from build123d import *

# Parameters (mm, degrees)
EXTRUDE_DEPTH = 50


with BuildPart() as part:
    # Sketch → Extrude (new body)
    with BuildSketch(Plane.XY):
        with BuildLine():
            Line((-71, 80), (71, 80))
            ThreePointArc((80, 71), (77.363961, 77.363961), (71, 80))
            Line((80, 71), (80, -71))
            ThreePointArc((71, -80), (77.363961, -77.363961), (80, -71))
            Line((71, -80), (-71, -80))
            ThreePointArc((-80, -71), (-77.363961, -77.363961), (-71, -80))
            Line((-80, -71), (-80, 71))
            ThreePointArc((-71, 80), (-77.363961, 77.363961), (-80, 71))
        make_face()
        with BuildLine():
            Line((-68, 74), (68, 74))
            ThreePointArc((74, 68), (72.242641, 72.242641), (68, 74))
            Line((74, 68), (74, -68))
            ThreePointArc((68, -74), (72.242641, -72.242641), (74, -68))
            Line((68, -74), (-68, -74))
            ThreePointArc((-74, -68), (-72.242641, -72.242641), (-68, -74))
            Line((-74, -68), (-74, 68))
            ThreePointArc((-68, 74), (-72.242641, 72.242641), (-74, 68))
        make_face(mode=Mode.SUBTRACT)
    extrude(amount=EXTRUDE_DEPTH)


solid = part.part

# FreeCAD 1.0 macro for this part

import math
import FreeCAD as App
import Part
import Sketcher
from FreeCAD import Vector
Q = App.Units.Quantity

doc = App.newDocument("Part")
params = doc.addObject("Spreadsheet::Sheet", "Params")
for row, (alias, value) in enumerate([
    ("sketch1_radius", "9 mm"),
    ("sketch1_radius2", "5.999999 mm"),
    ("sketch1_width", "142 mm"),
    ("sketch1_width2", "136 mm"),
    ("pad1_length", "50 mm"),
], start=1):
    params.set(f"A{row}", alias)
    params.set(f"B{row}", "=" + value)
    params.setAlias(f"B{row}", alias)

body = doc.addObject("PartDesign::Body", "Body")

sketch1 = body.newObject("Sketcher::SketchObject", "Sketch")
sketch1.AttachmentSupport = (doc.getObject("XY_Plane"), [""])
sketch1.MapMode = "FlatFace"
sketch1.addGeometry([
    Part.LineSegment(Vector(71, 80, 0), Vector(-71, 80, 0)),
    Part.ArcOfCircle(Part.Circle(Vector(-71, 71, 0), Vector(0, 0, 1), 9), math.radians(90), math.radians(180)),
    Part.LineSegment(Vector(-80, 71, 0), Vector(-80, -71, 0)),
    Part.ArcOfCircle(Part.Circle(Vector(-71, -71, 0), Vector(0, 0, 1), 9), math.radians(-180), math.radians(-90)),
    Part.LineSegment(Vector(-71, -80, 0), Vector(71, -80, 0)),
    Part.ArcOfCircle(Part.Circle(Vector(71, -71, 0), Vector(0, 0, 1), 9), math.radians(-90), math.radians(0)),
    Part.LineSegment(Vector(80, -71, 0), Vector(80, 71, 0)),
    Part.ArcOfCircle(Part.Circle(Vector(71, 71, 0), Vector(0, 0, 1), 9), math.radians(0), math.radians(90)),
    Part.LineSegment(Vector(-68, 74, 0), Vector(68, 74, 0)),
    Part.ArcOfCircle(Part.Circle(Vector(68, 68, 0), Vector(0, 0, 1), 6), math.radians(0), math.radians(90)),
    Part.LineSegment(Vector(74, 68, 0), Vector(74, -68, 0)),
    Part.ArcOfCircle(Part.Circle(Vector(68, -68, 0), Vector(0, 0, 1), 6), math.radians(-90), math.radians(0)),
    Part.LineSegment(Vector(68, -74, 0), Vector(-68, -74, 0)),
    Part.ArcOfCircle(Part.Circle(Vector(-68, -68, 0), Vector(0, 0, 1), 6), math.radians(180), math.radians(270)),
    Part.LineSegment(Vector(-74, -68, 0), Vector(-74, 68, 0)),
    Part.ArcOfCircle(Part.Circle(Vector(-68, 68, 0), Vector(0, 0, 1), 6), math.radians(90), math.radians(180)),
], False)
sketch1.addConstraint([
    Sketcher.Constraint("Tangent", 0, 2, 1, 1),
    Sketcher.Constraint("Tangent", 1, 2, 2, 1),
    Sketcher.Constraint("Tangent", 2, 2, 3, 1),
    Sketcher.Constraint("Tangent", 3, 2, 4, 1),
    Sketcher.Constraint("Tangent", 4, 2, 5, 1),
    Sketcher.Constraint("Tangent", 5, 2, 6, 1),
    Sketcher.Constraint("Tangent", 6, 2, 7, 1),
    Sketcher.Constraint("Tangent", 7, 2, 0, 1),
    Sketcher.Constraint("Tangent", 8, 2, 9, 2),
    Sketcher.Constraint("Tangent", 9, 1, 10, 1),
    Sketcher.Constraint("Tangent", 10, 2, 11, 2),
    Sketcher.Constraint("Tangent", 11, 1, 12, 1),
    Sketcher.Constraint("Tangent", 12, 2, 13, 2),
    Sketcher.Constraint("Tangent", 13, 1, 14, 1),
    Sketcher.Constraint("Tangent", 14, 2, 15, 2),
    Sketcher.Constraint("Tangent", 15, 1, 8, 1),
    Sketcher.Constraint("Horizontal", 0),
    Sketcher.Constraint("Vertical", 2),
    Sketcher.Constraint("Horizontal", 4),
    Sketcher.Constraint("Vertical", 6),
    Sketcher.Constraint("Horizontal", 8),
    Sketcher.Constraint("Vertical", 10),
    Sketcher.Constraint("Horizontal", 12),
    Sketcher.Constraint("Vertical", 14),
    Sketcher.Constraint("Equal", 1, 3),
    Sketcher.Constraint("Equal", 3, 5),
    Sketcher.Constraint("Equal", 5, 7),
    Sketcher.Constraint("Equal", 9, 11),
    Sketcher.Constraint("Equal", 11, 13),
    Sketcher.Constraint("Equal", 13, 15),
    Sketcher.Constraint("Symmetric", 1, 3, 5, 3, -1, 1),
    Sketcher.Constraint("Symmetric", 9, 3, 13, 3, -1, 1),
    Sketcher.Constraint("Equal", 4, 2),
    Sketcher.Constraint("Equal", 12, 10),
    Sketcher.Constraint("Radius", 1, Q("9 mm")),
    Sketcher.Constraint("Radius", 9, Q("5.999999 mm")),
    Sketcher.Constraint("DistanceX", 0, 2, 0, 1, Q("142 mm")),
    Sketcher.Constraint("DistanceX", 8, 1, 8, 2, Q("136 mm")),
])
sketch1.setExpression("Constraints[34]", "Params.sketch1_radius")
sketch1.setExpression("Constraints[35]", "Params.sketch1_radius2")
sketch1.setExpression("Constraints[36]", "Params.sketch1_width")
sketch1.setExpression("Constraints[37]", "Params.sketch1_width2")
pad1 = body.newObject("PartDesign::Pad", "Pad")
pad1.Profile = sketch1
pad1.setExpression("Length", "Params.pad1_length")

doc.recompute()
